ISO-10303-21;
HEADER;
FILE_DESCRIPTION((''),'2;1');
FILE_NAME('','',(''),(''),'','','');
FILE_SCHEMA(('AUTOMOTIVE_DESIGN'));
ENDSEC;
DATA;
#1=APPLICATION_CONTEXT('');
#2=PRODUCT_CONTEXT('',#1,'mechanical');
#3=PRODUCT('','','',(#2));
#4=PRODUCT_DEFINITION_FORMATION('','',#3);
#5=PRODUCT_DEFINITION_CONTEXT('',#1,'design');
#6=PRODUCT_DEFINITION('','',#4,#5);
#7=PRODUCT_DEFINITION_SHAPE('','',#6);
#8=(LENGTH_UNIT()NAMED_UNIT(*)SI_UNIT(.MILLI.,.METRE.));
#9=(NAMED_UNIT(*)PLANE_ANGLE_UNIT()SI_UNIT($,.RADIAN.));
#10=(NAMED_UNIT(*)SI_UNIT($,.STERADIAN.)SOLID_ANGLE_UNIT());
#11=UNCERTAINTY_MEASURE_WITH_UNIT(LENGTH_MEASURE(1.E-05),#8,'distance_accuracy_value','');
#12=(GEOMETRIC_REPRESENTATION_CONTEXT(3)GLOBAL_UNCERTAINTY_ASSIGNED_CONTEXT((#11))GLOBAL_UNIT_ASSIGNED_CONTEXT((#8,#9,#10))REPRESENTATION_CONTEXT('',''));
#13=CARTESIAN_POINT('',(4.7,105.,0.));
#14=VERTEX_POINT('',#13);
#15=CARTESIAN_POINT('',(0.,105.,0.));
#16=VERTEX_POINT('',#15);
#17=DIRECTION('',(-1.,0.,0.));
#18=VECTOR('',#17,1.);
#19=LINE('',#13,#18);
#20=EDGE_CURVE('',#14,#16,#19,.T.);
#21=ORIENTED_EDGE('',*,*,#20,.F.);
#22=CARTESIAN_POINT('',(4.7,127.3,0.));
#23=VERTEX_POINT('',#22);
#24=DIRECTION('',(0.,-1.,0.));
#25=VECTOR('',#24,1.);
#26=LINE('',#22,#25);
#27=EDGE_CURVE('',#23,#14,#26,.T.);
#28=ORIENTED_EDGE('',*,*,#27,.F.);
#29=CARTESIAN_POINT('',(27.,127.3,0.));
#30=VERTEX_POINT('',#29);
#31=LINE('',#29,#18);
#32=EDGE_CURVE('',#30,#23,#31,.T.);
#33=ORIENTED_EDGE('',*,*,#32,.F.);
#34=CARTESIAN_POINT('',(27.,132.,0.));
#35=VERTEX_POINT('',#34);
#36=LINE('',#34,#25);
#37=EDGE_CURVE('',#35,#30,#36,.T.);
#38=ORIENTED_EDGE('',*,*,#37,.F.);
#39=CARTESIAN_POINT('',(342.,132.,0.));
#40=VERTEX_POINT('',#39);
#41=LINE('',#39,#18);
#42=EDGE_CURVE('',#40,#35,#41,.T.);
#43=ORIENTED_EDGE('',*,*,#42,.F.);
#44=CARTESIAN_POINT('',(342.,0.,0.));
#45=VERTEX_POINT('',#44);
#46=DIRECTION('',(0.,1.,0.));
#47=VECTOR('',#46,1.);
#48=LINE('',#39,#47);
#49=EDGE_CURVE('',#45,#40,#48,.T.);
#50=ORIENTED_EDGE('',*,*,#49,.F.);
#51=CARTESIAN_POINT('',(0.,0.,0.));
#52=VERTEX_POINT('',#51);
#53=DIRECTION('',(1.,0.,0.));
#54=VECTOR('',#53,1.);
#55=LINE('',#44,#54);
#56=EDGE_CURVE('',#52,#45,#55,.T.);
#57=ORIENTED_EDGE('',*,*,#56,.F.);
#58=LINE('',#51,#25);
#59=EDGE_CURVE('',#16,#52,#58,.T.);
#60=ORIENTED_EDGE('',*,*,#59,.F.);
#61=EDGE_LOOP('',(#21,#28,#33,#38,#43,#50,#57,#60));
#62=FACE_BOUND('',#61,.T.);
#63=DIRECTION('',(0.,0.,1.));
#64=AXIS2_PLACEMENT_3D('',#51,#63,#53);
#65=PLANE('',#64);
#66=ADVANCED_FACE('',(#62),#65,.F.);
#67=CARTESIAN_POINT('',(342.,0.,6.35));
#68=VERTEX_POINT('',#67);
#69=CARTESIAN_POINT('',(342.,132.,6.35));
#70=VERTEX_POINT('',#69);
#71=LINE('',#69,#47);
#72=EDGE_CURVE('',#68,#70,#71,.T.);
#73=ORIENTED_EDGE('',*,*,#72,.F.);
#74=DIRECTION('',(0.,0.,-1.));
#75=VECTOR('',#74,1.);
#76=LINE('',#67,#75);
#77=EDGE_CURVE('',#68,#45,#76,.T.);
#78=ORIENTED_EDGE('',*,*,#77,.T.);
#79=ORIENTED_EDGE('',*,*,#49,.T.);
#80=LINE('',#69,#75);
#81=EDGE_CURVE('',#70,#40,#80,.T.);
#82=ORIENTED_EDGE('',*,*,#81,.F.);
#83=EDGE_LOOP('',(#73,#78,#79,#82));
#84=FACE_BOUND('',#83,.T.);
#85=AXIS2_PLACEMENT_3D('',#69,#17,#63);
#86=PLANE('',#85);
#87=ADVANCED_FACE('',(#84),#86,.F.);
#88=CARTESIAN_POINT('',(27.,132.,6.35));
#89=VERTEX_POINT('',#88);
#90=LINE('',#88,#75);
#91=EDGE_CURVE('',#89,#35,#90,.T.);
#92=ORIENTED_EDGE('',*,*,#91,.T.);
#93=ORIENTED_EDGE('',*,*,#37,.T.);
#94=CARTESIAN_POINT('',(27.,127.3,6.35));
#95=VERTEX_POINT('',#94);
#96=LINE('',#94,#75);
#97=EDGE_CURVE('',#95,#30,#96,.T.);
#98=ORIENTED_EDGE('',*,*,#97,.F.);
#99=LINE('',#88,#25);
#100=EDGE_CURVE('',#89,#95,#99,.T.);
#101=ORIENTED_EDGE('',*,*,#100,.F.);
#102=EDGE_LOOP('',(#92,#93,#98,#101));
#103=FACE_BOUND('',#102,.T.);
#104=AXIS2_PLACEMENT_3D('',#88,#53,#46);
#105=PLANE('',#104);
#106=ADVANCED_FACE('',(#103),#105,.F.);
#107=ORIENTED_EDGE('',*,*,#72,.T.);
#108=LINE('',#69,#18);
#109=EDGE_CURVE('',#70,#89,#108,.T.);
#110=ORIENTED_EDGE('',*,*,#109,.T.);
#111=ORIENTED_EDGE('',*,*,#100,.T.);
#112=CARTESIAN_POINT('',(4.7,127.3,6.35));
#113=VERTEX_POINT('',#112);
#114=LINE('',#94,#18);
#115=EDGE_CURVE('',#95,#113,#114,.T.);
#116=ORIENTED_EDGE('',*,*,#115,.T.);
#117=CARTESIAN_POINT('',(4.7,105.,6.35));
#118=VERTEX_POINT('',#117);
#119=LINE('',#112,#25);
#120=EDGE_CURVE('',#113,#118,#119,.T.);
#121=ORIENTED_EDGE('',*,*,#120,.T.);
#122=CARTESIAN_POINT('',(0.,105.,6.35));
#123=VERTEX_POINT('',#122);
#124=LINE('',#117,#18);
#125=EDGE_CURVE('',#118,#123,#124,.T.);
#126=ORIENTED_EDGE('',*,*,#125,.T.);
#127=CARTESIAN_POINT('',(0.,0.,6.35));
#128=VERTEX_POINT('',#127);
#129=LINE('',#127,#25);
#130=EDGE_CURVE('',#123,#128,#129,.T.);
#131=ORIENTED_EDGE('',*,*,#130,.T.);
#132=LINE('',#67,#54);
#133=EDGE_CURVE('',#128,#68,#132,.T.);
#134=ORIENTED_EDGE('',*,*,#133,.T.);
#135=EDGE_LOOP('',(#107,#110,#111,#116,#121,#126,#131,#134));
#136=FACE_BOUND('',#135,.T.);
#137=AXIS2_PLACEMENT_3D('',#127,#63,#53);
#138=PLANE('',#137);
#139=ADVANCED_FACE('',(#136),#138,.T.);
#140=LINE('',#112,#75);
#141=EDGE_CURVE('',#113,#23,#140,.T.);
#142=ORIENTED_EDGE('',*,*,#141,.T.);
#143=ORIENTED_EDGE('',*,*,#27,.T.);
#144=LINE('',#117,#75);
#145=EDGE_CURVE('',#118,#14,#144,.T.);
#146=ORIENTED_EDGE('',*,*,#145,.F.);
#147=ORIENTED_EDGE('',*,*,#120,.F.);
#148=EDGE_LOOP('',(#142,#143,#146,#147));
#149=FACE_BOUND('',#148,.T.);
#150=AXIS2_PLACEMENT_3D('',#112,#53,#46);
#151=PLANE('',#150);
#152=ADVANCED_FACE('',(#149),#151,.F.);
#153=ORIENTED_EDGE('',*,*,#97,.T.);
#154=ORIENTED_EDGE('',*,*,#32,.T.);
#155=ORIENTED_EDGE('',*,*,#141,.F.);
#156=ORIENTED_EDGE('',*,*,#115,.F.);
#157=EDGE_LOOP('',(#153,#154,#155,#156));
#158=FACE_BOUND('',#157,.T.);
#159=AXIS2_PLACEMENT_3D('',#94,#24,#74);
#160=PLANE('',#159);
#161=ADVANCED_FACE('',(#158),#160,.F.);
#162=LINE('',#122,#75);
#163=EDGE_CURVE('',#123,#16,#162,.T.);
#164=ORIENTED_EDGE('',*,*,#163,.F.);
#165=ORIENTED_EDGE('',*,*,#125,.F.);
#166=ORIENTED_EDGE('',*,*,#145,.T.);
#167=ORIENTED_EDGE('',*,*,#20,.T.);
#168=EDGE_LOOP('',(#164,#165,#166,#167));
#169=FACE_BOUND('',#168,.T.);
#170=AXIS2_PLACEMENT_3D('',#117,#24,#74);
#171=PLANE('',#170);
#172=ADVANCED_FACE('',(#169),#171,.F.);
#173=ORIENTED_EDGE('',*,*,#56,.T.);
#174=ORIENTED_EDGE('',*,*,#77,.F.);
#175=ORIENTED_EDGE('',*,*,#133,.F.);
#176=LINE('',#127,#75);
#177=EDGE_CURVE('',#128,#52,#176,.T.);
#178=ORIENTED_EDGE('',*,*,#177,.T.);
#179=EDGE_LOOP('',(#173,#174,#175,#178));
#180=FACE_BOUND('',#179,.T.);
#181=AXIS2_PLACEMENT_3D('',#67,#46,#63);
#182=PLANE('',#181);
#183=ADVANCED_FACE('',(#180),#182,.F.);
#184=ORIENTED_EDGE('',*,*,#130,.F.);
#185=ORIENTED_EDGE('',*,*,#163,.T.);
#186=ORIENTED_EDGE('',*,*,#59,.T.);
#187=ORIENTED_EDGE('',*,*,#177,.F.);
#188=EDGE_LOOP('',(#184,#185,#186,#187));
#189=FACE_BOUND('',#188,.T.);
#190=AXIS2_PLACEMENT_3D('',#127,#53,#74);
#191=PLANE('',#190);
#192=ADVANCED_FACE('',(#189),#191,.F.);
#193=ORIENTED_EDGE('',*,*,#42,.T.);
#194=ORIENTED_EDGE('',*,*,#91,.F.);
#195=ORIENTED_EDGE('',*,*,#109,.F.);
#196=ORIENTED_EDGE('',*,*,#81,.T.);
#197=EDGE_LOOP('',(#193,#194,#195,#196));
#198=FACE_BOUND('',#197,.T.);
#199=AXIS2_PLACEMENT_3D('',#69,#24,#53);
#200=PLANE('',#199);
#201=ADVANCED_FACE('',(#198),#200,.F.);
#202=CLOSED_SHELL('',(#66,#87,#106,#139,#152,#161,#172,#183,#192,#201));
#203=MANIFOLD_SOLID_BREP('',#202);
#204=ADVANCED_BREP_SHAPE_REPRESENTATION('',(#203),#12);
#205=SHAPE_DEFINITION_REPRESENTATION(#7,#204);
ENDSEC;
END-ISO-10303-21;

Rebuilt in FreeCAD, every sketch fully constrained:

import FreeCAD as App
import Part
import Sketcher
from FreeCAD import Vector
Q = App.Units.Quantity

doc = App.newDocument("Part")
params = doc.addObject("Spreadsheet::Sheet", "Params")
for row, (alias, value) in enumerate([
    ("sketch1_width", "342 mm"),
    ("sketch1_width2", "315 mm"),
    ("sketch1_height", "105 mm"),
    ("sketch1_width3", "22.3 mm"),
    ("pad1_length", "6.35 mm"),
], start=1):
    params.set(f"A{row}", alias)
    params.set(f"B{row}", "=" + value)
    params.setAlias(f"B{row}", alias)

body = doc.addObject("PartDesign::Body", "Body")

# Sketch on XY plane
sketch1 = body.newObject("Sketcher::SketchObject", "Sketch")
sketch1.AttachmentSupport = (doc.getObject("XY_Plane"), [""])
sketch1.MapMode = "FlatFace"
sketch1.addGeometry([
    Part.LineSegment(Vector(27, 132, 0), Vector(27, 127.3, 0)),  # 0
    Part.LineSegment(Vector(27, 127.3, 0), Vector(4.7, 127.3, 0)),  # 1
    Part.LineSegment(Vector(4.7, 127.3, 0), Vector(4.7, 105, 0)),  # 2
    Part.LineSegment(Vector(4.7, 105, 0), Vector(0, 105, 0)),  # 3
    Part.LineSegment(Vector(0, 105, 0), Vector(0, 0, 0)),  # 4
    Part.LineSegment(Vector(0, 0, 0), Vector(342, 0, 0)),  # 5
    Part.LineSegment(Vector(342, 0, 0), Vector(342, 132, 0)),  # 6
    Part.LineSegment(Vector(342, 132, 0), Vector(27, 132, 0)),  # 7
], False)
sketch1.addConstraint([
    Sketcher.Constraint("Coincident", 0, 2, 1, 1),
    Sketcher.Constraint("Coincident", 1, 2, 2, 1),
    Sketcher.Constraint("Coincident", 2, 2, 3, 1),
    Sketcher.Constraint("Coincident", 3, 2, 4, 1),
    Sketcher.Constraint("Coincident", 4, 2, 5, 1),
    Sketcher.Constraint("Coincident", 5, 2, 6, 1),
    Sketcher.Constraint("Coincident", 6, 2, 7, 1),
    Sketcher.Constraint("Coincident", 7, 2, 0, 1),
    Sketcher.Constraint("Vertical", 0),
    Sketcher.Constraint("Horizontal", 1),
    Sketcher.Constraint("Vertical", 2),
    Sketcher.Constraint("Horizontal", 3),
    Sketcher.Constraint("Vertical", 4),
    Sketcher.Constraint("Horizontal", 5),
    Sketcher.Constraint("Vertical", 6),
    Sketcher.Constraint("Horizontal", 7),
    Sketcher.Constraint("Coincident", 4, 2, -1, 1),
    Sketcher.Constraint("Equal", 3, 0),
    Sketcher.Constraint("Equal", 1, 2),
    Sketcher.Constraint("DistanceX", 5, 1, 5, 2, Q("342 mm")),
    Sketcher.Constraint("DistanceX", 7, 2, 7, 1, Q("315 mm")),
    Sketcher.Constraint("DistanceY", 4, 2, 4, 1, Q("105 mm")),
    Sketcher.Constraint("DistanceX", 1, 2, 1, 1, Q("22.3 mm")),
])
sketch1.setExpression("Constraints[19]", "Params.sketch1_width")
sketch1.setExpression("Constraints[20]", "Params.sketch1_width2")
sketch1.setExpression("Constraints[21]", "Params.sketch1_height")
sketch1.setExpression("Constraints[22]", "Params.sketch1_width3")
pad1 = body.newObject("PartDesign::Pad", "Pad")
pad1.Profile = sketch1
pad1.setExpression("Length", "Params.pad1_length")

doc.recompute()
